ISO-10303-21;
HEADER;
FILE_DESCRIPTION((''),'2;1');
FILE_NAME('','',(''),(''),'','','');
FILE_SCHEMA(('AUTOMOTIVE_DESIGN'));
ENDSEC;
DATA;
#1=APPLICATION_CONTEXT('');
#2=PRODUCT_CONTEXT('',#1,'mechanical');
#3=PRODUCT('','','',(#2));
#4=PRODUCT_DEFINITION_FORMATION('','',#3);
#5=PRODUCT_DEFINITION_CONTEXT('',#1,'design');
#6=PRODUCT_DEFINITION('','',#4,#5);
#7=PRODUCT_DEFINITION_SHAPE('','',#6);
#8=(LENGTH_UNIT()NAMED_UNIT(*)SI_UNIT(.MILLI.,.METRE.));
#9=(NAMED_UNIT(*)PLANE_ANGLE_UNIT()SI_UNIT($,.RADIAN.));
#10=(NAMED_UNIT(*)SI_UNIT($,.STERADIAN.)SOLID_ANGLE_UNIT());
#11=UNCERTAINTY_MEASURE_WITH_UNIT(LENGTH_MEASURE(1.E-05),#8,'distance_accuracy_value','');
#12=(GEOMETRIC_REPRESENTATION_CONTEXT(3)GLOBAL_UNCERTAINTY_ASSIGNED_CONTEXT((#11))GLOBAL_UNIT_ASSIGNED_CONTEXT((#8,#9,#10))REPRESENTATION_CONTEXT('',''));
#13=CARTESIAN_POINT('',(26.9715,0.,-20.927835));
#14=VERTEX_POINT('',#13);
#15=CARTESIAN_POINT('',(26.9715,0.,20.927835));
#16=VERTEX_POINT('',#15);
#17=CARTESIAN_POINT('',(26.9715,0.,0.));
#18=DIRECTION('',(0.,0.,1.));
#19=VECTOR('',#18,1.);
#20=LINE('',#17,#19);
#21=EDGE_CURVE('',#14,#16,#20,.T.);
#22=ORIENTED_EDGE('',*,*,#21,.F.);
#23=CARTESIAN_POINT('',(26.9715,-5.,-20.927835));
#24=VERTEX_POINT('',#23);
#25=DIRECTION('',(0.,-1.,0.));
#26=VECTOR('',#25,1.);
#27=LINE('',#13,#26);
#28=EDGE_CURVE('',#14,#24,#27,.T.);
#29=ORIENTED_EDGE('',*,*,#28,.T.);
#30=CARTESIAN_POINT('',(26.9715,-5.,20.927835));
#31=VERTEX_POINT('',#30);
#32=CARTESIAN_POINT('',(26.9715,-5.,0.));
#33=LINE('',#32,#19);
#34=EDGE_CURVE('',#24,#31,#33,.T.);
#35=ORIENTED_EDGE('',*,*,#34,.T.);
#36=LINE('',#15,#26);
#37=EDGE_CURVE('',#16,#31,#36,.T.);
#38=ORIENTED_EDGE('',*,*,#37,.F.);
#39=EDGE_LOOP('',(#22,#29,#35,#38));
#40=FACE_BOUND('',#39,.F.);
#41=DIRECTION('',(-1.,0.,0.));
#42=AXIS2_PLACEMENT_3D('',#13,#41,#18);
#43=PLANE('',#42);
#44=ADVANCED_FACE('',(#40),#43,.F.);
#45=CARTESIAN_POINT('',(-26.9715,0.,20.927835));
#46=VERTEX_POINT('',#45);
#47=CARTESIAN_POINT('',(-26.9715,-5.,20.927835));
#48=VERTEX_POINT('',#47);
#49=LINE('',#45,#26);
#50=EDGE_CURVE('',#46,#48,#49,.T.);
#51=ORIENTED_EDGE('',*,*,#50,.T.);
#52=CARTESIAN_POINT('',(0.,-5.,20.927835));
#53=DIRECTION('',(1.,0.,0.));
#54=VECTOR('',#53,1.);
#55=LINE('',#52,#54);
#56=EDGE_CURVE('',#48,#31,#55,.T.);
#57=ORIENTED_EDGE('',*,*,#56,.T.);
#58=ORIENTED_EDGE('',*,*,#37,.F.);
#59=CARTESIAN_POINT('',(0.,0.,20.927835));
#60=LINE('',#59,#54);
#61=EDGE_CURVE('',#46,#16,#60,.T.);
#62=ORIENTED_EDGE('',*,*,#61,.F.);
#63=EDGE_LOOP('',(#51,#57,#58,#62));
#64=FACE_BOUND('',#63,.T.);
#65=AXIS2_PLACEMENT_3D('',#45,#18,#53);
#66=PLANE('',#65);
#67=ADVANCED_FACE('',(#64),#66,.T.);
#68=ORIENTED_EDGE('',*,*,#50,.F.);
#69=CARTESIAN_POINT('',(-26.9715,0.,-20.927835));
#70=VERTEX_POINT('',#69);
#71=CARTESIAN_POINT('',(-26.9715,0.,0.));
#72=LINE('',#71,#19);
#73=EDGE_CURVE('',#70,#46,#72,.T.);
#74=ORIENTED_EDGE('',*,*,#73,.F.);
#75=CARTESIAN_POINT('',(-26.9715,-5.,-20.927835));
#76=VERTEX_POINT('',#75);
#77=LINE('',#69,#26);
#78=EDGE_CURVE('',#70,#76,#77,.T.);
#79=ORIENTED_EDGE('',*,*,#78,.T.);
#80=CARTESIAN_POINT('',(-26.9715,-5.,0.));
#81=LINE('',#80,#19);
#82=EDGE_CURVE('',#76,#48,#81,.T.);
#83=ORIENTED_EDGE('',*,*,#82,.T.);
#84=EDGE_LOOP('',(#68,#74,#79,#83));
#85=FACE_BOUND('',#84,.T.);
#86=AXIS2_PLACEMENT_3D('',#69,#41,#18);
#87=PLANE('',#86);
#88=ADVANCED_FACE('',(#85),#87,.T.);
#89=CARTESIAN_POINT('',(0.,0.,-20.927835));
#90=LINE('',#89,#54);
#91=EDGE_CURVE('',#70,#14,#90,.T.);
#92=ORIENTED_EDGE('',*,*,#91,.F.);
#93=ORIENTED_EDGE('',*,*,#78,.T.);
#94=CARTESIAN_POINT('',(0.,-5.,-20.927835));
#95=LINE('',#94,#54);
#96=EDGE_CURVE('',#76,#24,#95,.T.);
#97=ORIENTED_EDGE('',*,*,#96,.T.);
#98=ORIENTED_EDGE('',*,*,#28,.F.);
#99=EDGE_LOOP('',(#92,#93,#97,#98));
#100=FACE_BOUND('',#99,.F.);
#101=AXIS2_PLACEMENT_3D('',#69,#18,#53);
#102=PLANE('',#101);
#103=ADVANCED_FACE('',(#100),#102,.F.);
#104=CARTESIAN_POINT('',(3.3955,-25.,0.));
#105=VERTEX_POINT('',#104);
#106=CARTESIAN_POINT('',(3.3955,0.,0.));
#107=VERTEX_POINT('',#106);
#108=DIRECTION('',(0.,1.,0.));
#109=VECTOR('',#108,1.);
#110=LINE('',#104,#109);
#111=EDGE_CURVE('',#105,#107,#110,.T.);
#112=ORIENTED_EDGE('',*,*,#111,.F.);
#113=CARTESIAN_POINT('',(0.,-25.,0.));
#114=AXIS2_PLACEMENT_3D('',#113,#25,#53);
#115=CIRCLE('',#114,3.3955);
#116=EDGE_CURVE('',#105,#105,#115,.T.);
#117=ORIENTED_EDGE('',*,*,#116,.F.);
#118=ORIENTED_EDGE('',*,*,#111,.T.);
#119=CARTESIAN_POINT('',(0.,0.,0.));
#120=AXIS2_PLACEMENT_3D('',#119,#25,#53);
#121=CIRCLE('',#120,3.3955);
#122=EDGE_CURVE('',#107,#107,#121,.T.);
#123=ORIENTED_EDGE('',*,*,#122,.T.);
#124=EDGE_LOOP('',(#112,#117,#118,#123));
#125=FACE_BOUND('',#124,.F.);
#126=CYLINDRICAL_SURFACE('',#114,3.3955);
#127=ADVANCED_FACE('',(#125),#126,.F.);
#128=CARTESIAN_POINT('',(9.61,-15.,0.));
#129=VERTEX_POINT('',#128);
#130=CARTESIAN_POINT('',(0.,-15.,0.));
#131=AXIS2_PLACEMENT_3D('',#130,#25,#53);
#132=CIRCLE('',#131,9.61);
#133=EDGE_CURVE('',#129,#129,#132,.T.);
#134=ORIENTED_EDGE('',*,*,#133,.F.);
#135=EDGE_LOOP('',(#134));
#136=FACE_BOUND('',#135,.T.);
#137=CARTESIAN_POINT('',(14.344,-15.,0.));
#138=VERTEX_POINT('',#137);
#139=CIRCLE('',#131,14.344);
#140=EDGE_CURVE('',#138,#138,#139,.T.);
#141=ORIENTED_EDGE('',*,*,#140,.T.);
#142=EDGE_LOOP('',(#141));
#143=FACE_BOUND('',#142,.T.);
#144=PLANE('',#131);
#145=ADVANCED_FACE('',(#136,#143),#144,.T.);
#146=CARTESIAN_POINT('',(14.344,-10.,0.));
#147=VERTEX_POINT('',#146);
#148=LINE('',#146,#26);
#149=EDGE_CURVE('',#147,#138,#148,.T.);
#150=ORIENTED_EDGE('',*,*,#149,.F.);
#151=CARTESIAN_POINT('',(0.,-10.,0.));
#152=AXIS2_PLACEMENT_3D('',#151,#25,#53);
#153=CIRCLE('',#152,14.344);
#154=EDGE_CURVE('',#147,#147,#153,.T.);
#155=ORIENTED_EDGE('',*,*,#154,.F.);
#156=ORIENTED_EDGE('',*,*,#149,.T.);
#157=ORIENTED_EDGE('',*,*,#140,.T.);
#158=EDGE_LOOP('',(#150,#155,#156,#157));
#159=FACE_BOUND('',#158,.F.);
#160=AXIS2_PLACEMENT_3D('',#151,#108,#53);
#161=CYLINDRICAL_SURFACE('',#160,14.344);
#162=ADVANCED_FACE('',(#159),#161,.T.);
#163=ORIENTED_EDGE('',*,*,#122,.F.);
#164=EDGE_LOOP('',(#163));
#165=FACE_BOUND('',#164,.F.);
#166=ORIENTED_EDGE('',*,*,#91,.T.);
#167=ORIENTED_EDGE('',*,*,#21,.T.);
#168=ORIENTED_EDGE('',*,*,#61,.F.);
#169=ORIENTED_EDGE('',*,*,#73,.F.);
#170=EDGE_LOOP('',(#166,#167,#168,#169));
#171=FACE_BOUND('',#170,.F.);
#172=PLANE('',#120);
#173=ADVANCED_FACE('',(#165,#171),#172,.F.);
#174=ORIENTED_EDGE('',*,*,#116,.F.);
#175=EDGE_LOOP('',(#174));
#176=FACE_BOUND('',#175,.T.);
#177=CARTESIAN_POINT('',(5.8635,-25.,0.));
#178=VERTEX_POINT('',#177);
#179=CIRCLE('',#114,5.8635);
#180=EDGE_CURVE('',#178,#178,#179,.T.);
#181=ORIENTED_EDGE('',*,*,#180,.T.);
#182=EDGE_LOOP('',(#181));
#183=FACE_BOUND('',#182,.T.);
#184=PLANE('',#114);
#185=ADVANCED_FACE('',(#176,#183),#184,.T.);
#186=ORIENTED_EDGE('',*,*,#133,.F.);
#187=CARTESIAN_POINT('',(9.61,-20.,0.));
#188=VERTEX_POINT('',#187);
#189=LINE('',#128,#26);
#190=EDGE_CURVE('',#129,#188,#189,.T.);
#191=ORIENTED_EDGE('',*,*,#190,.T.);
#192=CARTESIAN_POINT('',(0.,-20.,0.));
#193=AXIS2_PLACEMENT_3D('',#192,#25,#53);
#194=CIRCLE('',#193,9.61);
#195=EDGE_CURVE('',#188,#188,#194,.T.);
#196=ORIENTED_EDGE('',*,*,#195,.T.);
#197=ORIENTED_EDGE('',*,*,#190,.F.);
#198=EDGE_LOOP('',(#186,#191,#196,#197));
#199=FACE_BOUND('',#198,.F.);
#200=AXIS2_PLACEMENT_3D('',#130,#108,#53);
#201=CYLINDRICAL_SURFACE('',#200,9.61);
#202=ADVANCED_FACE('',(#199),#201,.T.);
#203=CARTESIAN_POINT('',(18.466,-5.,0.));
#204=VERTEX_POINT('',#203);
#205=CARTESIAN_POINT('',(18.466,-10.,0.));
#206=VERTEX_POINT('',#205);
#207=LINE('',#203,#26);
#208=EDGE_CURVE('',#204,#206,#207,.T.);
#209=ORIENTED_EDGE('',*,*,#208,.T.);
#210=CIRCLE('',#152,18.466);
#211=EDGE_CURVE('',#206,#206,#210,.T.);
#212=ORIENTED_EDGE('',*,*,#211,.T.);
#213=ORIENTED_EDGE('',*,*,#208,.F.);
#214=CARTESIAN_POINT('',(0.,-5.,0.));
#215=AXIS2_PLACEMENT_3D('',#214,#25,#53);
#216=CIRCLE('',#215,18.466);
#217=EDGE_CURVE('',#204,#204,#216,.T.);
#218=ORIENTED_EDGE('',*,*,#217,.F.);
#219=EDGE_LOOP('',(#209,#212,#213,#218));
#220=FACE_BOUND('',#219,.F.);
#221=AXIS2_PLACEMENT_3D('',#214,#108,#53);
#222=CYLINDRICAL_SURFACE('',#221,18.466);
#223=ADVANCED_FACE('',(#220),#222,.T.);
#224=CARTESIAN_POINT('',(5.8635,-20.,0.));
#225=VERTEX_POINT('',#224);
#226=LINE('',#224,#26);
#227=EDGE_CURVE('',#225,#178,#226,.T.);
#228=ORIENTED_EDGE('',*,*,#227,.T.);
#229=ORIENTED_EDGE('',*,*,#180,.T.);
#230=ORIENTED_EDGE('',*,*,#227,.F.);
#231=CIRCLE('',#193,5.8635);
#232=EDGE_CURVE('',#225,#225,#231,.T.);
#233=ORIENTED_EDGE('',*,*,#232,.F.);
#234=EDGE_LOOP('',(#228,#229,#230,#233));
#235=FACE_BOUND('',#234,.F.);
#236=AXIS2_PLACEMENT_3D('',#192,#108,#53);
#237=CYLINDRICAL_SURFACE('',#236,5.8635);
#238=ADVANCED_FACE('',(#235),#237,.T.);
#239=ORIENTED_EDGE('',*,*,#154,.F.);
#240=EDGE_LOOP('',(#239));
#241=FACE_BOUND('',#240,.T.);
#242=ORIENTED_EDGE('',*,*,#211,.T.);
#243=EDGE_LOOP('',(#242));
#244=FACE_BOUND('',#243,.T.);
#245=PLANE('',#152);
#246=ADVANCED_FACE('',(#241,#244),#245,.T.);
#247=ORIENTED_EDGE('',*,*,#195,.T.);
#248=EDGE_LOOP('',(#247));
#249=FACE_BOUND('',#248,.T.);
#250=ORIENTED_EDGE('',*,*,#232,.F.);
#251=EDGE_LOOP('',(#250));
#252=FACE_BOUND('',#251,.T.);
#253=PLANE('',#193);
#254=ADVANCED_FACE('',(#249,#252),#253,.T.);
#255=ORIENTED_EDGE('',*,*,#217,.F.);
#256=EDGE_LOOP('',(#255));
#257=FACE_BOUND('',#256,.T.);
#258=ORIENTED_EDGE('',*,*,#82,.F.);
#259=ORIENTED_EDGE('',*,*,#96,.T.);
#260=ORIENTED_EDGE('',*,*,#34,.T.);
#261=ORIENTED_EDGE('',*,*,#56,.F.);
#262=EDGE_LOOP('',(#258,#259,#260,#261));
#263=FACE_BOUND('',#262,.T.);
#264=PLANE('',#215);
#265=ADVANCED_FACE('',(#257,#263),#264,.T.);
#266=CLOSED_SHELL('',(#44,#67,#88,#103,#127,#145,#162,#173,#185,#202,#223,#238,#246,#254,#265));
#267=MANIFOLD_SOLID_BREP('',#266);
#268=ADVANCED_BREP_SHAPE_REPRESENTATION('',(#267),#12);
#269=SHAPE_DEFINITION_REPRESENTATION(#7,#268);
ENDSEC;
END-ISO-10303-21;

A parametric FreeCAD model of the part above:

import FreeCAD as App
import Part
import Sketcher
from FreeCAD import Vector
Q = App.Units.Quantity


def add_polygon(sketch, points):
    """Adds a closed chain of lines whose ends are joined by coincident constraints."""
    first, n = sketch.GeometryCount, len(points)
    for a, b in zip(points, points[1:] + points[:1]):
        sketch.addGeometry(Part.LineSegment(App.Vector(*a, 0), App.Vector(*b, 0)), False)
    for i in range(n):
        sketch.addConstraint(Sketcher.Constraint("Coincident", first + i, 2, first + (i + 1) % n, 1))

doc = App.newDocument("Part")
params = doc.addObject("Spreadsheet::Sheet", "Params")
for row, (alias, value) in enumerate([
    ("pad1_length", "5 mm"),
    ("pad2_length", "5 mm"),
    ("pad3_length", "5 mm"),
    ("sketch4_diameter", "19.22 mm"),
    ("pad4_length", "5 mm"),
    ("pad5_length", "5 mm"),
], start=1):
    params.set(f"A{row}", alias)
    params.set(f"B{row}", "=" + value)
    params.setAlias(f"B{row}", alias)

body = doc.addObject("PartDesign::Body", "Body")

# Sketch on XZ plane
sketch1 = body.newObject("Sketcher::SketchObject", "Sketch")
sketch1.AttachmentSupport = (doc.getObject("XZ_Plane"), [""])
sketch1.MapMode = "FlatFace"
add_polygon(sketch1, [(-27, 21), (-27, -21), (27, -21), (27, 21)])  # lines 0-3
sketch1.addConstraint([
    Sketcher.Constraint("Vertical", 0),
    Sketcher.Constraint("Horizontal", 1),
    Sketcher.Constraint("Vertical", 2),
    Sketcher.Constraint("Horizontal", 3),
    Sketcher.Constraint("Symmetric", 0, 2, 2, 2, -1, 1),
    Sketcher.Constraint("DistanceX", 1, 1, 1, 2, Q("53.943 mm")),
    Sketcher.Constraint("DistanceY", 0, 2, 0, 1, Q("41.85567 mm")),
])
pad1 = body.newObject("PartDesign::Pad", "Pad")
pad1.Profile = sketch1
pad1.setExpression("Length", "Params.pad1_length")

# Sketch on XZ plane
sketch2 = body.newObject("Sketcher::SketchObject", "Sketch001")
sketch2.AttachmentSupport = (doc.getObject("XZ_Plane"), [""])
sketch2.MapMode = "FlatFace"
sketch2.AttachmentOffset = App.Placement(Vector(0, 0, 5), App.Rotation())
sketch2.addGeometry(Part.Circle(Vector(0, 0, 0), Vector(0, 0, 1), 18), False)
sketch2.addConstraint([
    Sketcher.Constraint("Coincident", 0, 3, -1, 1),
    Sketcher.Constraint("Diameter", 0, Q("36.932 mm")),
])
pad2 = body.newObject("PartDesign::Pad", "Pad001")
pad2.Profile = sketch2
pad2.setExpression("Length", "Params.pad2_length")

# Sketch on XZ plane
sketch3 = body.newObject("Sketcher::SketchObject", "Sketch002")
sketch3.AttachmentSupport = (doc.getObject("XZ_Plane"), [""])
sketch3.MapMode = "FlatFace"
sketch3.AttachmentOffset = App.Placement(Vector(0, 0, 10), App.Rotation())
sketch3.addGeometry(Part.Circle(Vector(0, 0, 0), Vector(0, 0, 1), 14), False)
sketch3.addConstraint([
    Sketcher.Constraint("Coincident", 0, 3, -1, 1),
    Sketcher.Constraint("Diameter", 0, Q("28.688 mm")),
])
pad3 = body.newObject("PartDesign::Pad", "Pad002")
pad3.Profile = sketch3
pad3.setExpression("Length", "Params.pad3_length")

# Sketch on XZ plane
sketch4 = body.newObject("Sketcher::SketchObject", "Sketch003")
sketch4.AttachmentSupport = (doc.getObject("XZ_Plane"), [""])
sketch4.MapMode = "FlatFace"
sketch4.AttachmentOffset = App.Placement(Vector(0, 0, 15), App.Rotation())
sketch4.addGeometry(Part.Circle(Vector(0, 0, 0), Vector(0, 0, 1), 10), False)
sketch4.addConstraint([
    Sketcher.Constraint("Coincident", 0, 3, -1, 1),
    Sketcher.Constraint("Diameter", 0, Q("19.22 mm")),
])
sketch4.setExpression("Constraints[1]", "Params.sketch4_diameter")
pad4 = body.newObject("PartDesign::Pad", "Pad003")
pad4.Profile = sketch4
pad4.setExpression("Length", "Params.pad4_length")

# Sketch on XZ plane
sketch5 = body.newObject("Sketcher::SketchObject", "Sketch004")
sketch5.AttachmentSupport = (doc.getObject("XZ_Plane"), [""])
sketch5.MapMode = "FlatFace"
sketch5.AttachmentOffset = App.Placement(Vector(0, 0, 20), App.Rotation())
sketch5.addGeometry(Part.Circle(Vector(0, 0, 0), Vector(0, 0, 1), 6), False)
sketch5.addConstraint([
    Sketcher.Constraint("Coincident", 0, 3, -1, 1),
    Sketcher.Constraint("Diameter", 0, Q("11.727 mm")),
])
pad5 = body.newObject("PartDesign::Pad", "Pad004")
pad5.Profile = sketch5
pad5.setExpression("Length", "Params.pad5_length")

# Sketch on XZ plane
sketch6 = body.newObject("Sketcher::SketchObject", "Sketch005")
sketch6.AttachmentSupport = (doc.getObject("XZ_Plane"), [""])
sketch6.MapMode = "FlatFace"
sketch6.AttachmentOffset = App.Placement(Vector(0, 0, 25), App.Rotation())
sketch6.addGeometry(Part.Circle(Vector(0, 0, 0), Vector(0, 0, 1), 3.4), False)
sketch6.addConstraint([
    Sketcher.Constraint("Coincident", 0, 3, -1, 1),
    Sketcher.Constraint("Diameter", 0, Q("6.791 mm")),
])
pocket1 = body.newObject("PartDesign::Pocket", "Pocket")
pocket1.Profile = sketch6
pocket1.Type = "ThroughAll"

doc.recompute()
